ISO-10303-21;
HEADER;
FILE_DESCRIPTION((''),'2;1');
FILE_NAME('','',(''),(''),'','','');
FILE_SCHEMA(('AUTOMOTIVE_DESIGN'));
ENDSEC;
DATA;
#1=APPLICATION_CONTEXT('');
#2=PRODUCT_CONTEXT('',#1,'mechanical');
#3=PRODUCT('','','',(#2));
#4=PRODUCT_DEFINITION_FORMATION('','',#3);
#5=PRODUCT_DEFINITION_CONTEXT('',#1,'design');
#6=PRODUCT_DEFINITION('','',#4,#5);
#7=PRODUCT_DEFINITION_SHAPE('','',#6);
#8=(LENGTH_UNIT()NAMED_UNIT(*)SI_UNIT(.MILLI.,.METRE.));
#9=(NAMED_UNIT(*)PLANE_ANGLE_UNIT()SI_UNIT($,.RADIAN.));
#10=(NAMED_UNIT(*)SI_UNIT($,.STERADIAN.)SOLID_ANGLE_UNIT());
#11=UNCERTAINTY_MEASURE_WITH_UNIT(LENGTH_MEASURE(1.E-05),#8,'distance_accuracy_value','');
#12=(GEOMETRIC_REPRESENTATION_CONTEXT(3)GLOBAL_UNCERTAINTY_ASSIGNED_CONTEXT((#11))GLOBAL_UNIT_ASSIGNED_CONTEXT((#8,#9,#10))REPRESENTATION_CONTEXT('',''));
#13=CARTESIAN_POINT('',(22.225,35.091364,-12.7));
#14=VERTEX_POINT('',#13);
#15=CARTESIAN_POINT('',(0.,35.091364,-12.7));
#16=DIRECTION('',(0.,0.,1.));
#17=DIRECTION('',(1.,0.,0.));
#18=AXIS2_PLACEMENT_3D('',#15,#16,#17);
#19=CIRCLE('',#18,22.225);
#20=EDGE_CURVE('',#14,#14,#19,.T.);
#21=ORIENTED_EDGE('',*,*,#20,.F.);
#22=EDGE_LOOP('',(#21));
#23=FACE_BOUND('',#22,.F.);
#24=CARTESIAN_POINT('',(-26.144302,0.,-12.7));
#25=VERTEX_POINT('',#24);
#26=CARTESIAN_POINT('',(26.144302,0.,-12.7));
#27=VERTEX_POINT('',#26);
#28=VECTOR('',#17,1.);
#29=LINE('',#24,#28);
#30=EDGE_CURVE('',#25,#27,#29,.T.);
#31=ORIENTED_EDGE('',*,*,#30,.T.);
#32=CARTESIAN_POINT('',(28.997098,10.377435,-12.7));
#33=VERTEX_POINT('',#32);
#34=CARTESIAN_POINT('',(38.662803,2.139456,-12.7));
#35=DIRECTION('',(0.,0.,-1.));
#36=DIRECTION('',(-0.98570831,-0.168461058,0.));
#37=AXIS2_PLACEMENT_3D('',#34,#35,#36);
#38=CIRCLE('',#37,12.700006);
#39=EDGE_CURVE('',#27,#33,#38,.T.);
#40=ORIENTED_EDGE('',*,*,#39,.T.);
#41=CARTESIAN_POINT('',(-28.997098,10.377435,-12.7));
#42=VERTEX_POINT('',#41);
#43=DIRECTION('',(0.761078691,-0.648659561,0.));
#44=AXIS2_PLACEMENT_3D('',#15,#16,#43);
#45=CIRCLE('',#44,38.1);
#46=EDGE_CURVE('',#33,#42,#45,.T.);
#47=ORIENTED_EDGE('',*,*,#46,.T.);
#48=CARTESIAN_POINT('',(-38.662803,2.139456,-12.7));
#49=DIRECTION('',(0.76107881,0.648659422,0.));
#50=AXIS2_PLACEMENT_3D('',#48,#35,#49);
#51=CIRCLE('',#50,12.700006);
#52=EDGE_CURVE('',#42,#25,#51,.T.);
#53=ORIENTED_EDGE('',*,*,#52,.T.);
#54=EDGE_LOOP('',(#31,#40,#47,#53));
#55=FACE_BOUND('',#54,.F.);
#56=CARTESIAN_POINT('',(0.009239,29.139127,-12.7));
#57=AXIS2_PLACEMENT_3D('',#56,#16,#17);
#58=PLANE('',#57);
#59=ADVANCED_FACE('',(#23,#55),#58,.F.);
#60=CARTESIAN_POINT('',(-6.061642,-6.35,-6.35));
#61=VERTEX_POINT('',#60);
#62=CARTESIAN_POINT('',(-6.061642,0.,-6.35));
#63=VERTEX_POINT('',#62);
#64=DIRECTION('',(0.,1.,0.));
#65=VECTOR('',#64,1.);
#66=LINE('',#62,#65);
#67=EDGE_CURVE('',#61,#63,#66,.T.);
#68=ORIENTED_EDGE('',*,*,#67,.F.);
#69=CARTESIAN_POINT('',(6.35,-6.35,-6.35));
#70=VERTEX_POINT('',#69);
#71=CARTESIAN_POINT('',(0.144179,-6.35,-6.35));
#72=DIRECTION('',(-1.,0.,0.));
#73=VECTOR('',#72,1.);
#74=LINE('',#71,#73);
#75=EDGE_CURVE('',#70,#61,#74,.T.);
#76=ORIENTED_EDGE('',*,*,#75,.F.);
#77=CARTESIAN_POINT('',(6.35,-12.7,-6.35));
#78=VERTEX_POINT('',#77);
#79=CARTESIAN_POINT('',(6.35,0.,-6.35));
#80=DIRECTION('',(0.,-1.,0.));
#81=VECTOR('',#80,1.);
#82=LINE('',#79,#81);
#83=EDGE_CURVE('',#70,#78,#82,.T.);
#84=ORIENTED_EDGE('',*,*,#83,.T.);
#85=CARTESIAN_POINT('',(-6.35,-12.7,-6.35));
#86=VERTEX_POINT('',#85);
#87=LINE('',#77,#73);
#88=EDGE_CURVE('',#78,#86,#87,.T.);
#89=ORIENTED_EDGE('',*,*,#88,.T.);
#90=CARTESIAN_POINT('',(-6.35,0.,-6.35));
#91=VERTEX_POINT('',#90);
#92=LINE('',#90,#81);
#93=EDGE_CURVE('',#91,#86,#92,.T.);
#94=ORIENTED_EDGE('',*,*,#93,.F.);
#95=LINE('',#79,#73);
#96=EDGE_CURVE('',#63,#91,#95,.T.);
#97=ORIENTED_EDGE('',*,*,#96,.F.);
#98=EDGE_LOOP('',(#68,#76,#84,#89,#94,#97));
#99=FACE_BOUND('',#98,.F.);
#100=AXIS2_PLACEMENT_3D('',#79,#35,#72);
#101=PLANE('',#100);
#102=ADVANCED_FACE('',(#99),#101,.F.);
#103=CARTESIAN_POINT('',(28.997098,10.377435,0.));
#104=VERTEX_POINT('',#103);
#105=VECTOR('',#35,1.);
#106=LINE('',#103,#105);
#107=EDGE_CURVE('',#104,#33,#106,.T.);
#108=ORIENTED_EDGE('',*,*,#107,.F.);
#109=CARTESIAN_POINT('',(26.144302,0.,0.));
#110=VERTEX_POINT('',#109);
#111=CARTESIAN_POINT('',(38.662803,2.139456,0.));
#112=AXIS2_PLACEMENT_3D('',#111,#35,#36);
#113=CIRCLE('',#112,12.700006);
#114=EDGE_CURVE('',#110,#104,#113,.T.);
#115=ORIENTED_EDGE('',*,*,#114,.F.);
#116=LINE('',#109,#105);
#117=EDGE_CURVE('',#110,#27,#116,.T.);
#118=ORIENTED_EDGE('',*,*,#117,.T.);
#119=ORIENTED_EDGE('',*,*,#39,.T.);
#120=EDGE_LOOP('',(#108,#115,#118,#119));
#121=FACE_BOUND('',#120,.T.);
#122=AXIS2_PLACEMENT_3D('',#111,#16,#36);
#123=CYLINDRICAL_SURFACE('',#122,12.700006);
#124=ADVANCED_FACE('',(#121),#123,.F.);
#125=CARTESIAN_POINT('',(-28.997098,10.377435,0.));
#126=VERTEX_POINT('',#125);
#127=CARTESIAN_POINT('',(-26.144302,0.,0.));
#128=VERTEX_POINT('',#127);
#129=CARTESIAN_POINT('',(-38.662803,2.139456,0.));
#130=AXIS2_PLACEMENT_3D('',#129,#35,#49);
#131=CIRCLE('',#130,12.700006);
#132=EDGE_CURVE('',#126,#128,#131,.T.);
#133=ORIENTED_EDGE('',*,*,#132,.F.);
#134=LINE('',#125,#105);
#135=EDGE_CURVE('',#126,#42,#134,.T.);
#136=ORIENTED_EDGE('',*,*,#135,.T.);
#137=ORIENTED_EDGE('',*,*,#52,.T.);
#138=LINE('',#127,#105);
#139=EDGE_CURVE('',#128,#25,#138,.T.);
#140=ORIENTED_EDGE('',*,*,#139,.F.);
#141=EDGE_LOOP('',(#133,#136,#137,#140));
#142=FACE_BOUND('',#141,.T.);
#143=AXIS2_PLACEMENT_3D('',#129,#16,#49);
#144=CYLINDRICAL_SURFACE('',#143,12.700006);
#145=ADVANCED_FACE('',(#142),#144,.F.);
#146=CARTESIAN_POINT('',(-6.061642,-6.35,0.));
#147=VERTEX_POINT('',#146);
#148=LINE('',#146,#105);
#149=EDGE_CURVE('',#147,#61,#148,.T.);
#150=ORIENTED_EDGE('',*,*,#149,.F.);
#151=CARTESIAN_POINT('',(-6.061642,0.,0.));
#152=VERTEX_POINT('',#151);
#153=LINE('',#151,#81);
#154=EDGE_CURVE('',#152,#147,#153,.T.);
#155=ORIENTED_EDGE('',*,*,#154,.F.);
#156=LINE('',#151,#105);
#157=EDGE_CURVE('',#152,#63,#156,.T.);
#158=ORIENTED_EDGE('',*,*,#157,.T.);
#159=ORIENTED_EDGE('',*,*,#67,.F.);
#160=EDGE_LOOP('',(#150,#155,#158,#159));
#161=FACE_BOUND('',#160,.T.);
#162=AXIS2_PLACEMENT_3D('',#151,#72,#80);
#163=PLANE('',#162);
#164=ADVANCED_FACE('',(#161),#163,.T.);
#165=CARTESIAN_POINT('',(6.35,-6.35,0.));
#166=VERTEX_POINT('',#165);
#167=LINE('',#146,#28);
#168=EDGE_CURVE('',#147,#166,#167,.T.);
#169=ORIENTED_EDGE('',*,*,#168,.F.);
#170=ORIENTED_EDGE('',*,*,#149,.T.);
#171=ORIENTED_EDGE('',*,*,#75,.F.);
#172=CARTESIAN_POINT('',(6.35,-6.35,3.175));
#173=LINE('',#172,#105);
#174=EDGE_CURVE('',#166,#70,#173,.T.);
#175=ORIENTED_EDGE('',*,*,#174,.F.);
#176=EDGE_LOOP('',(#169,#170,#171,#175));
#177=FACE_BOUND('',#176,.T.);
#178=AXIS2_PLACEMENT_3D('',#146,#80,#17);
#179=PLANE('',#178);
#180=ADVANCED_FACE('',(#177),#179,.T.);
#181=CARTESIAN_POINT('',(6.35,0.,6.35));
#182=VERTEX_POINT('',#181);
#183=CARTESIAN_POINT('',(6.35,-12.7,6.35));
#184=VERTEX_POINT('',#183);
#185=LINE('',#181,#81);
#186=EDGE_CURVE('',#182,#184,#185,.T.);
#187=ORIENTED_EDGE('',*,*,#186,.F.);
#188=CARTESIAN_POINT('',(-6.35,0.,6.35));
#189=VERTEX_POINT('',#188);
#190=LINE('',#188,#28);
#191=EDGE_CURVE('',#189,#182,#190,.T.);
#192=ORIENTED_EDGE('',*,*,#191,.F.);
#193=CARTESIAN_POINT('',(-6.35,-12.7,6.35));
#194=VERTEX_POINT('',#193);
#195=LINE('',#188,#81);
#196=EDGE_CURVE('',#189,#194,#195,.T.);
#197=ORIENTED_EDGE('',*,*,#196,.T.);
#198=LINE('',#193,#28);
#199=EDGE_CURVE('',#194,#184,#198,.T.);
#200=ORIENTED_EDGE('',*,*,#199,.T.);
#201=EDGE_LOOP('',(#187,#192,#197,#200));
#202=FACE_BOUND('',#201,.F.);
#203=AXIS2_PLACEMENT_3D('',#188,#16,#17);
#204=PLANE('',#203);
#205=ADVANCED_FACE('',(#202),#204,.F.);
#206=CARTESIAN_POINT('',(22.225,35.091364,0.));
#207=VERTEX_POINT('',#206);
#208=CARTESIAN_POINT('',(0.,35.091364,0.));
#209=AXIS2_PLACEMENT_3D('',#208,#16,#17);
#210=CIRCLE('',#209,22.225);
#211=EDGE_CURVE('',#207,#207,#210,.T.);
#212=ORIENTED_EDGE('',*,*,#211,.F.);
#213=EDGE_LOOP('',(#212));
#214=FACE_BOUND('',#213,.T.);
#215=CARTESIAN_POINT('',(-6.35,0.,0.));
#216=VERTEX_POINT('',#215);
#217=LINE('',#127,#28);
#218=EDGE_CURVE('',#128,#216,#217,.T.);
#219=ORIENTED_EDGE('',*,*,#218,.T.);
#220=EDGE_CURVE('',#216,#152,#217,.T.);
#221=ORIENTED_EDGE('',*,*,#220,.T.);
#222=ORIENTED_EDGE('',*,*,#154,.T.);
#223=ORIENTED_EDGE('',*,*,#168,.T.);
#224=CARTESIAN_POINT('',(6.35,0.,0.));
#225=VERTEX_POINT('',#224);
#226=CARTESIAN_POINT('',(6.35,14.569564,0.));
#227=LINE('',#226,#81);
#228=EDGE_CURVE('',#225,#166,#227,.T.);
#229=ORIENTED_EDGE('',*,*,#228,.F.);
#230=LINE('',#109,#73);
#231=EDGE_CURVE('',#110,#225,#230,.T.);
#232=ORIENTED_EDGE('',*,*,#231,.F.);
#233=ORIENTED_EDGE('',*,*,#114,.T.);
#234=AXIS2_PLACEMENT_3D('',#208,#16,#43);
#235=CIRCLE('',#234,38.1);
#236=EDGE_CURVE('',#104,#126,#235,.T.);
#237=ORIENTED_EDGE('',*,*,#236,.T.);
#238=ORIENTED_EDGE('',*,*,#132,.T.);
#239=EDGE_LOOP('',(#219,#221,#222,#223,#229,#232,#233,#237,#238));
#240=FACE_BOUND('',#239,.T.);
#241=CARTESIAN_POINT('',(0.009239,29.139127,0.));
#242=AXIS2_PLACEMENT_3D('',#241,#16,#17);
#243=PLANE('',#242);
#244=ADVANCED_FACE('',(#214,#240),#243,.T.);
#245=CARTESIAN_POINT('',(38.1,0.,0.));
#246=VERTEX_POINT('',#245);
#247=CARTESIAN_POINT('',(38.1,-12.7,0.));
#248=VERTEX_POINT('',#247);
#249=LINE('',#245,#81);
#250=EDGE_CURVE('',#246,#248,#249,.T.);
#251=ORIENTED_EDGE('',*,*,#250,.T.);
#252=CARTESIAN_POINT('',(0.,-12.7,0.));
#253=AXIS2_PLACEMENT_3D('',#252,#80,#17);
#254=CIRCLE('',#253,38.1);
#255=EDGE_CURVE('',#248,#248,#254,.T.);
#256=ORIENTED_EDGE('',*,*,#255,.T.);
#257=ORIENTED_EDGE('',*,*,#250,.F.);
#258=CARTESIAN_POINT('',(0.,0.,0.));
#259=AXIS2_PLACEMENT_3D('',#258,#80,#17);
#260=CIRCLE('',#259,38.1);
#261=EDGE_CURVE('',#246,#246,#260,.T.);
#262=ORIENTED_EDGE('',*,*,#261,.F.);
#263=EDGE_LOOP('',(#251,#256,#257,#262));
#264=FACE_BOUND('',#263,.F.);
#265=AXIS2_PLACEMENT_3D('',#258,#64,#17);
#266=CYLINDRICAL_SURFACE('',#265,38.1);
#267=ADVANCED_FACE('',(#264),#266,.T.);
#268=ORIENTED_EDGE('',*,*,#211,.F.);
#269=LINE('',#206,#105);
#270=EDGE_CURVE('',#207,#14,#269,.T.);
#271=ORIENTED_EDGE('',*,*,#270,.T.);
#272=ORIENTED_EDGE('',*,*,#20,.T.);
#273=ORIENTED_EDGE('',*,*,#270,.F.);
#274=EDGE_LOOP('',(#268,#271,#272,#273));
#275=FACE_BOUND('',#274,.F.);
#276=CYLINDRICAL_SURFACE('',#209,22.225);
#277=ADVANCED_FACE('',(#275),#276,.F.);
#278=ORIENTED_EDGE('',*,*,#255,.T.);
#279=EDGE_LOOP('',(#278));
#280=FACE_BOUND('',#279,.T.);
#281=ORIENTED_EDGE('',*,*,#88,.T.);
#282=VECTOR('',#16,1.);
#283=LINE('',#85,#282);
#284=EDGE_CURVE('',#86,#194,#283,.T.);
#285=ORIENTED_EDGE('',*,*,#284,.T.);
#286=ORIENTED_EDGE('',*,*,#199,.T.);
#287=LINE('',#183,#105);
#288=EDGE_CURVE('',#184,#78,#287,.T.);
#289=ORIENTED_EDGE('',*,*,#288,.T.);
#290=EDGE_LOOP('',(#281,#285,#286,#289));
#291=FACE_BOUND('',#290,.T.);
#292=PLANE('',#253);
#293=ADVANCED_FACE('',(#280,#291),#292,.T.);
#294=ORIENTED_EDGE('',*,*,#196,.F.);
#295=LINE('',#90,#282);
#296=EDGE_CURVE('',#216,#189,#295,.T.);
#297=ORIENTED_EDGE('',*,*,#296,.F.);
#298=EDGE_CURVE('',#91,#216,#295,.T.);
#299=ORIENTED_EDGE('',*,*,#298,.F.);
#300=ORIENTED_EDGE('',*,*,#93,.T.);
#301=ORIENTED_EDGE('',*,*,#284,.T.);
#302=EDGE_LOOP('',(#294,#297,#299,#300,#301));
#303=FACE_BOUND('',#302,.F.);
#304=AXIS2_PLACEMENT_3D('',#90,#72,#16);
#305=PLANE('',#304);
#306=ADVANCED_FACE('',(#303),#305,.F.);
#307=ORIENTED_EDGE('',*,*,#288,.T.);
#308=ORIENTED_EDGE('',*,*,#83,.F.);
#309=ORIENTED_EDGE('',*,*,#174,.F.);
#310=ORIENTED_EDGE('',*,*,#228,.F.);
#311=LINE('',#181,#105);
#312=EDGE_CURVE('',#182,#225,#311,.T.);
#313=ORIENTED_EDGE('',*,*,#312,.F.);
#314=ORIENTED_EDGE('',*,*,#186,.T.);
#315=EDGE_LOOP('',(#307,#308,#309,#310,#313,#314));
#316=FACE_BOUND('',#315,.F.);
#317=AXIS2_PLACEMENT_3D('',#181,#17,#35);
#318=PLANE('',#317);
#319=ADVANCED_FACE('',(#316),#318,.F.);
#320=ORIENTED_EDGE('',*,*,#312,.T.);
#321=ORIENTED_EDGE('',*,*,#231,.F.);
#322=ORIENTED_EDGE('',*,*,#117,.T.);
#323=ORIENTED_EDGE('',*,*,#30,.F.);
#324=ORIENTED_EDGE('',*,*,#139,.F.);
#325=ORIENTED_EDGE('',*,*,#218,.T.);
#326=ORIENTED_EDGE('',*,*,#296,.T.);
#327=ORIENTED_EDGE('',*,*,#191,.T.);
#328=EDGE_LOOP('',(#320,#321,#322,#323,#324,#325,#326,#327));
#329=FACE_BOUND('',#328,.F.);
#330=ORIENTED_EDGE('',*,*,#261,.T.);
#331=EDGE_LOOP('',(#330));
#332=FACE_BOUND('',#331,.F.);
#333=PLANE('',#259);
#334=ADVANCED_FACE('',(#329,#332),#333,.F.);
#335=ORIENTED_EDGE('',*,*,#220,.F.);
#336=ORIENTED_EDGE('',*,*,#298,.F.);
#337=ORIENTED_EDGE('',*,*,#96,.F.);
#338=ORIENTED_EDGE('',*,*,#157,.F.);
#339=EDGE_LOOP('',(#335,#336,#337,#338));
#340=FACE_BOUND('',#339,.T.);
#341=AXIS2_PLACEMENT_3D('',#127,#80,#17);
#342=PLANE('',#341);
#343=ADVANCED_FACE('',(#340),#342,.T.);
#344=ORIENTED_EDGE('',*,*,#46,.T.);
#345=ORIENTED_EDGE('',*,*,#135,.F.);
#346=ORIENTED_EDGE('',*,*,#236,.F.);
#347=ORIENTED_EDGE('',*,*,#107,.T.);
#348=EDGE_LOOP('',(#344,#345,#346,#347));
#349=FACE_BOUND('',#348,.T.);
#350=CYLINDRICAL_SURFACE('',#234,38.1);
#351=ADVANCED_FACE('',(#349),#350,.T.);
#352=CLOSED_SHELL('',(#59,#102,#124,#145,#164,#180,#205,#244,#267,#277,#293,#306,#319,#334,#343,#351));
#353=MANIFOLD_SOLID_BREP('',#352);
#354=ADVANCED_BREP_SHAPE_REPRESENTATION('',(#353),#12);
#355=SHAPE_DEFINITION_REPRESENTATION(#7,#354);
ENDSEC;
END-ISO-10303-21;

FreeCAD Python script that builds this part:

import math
import FreeCAD as App
import Part
import Sketcher
from FreeCAD import Vector
Q = App.Units.Quantity


def add_polygon(sketch, points):
    """Adds a closed chain of lines whose ends are joined by coincident constraints."""
    first, n = sketch.GeometryCount, len(points)
    for a, b in zip(points, points[1:] + points[:1]):
        sketch.addGeometry(Part.LineSegment(App.Vector(*a, 0), App.Vector(*b, 0)), False)
    for i in range(n):
        sketch.addConstraint(Sketcher.Constraint("Coincident", first + i, 2, first + (i + 1) % n, 1))

doc = App.newDocument("Part")
params = doc.addObject("Spreadsheet::Sheet", "Params")
for row, (alias, value) in enumerate([
    ("sketch1_diameter", "3 in"),
    ("sketch1_width", "0.5 in"),
    ("pad1_length", "0.5 in"),
    ("sketch2_radius", "1.5 in"),
    ("sketch2_diameter", "1.75 in"),
    ("sketch2_height", "0.25 in"),
    ("pad2_length", "0.5 in"),
], start=1):
    params.set(f"A{row}", alias)
    params.set(f"B{row}", "=" + value)
    params.setAlias(f"B{row}", alias)

body = doc.addObject("PartDesign::Body", "Body")

# Sketch on XZ plane
sketch1 = body.newObject("Sketcher::SketchObject", "Sketch")
sketch1.AttachmentSupport = (doc.getObject("XZ_Plane"), [""])
sketch1.MapMode = "FlatFace"
sketch1.addGeometry(Part.Circle(Vector(0, 0, 0), Vector(0, 0, 1), 38), False)  # 0
add_polygon(sketch1, [(-6, -6), (-6, 6), (6, 6), (6, -6)])  # lines 1-4
sketch1.addConstraint([
    Sketcher.Constraint("Vertical", 1),
    Sketcher.Constraint("Horizontal", 2),
    Sketcher.Constraint("Vertical", 3),
    Sketcher.Constraint("Horizontal", 4),
    Sketcher.Constraint("Coincident", 0, 3, -1, 1),
    Sketcher.Constraint("Symmetric", 1, 2, 3, 2, -1, 1),
    Sketcher.Constraint("Equal", 4, 1),
    Sketcher.Constraint("Diameter", 0, Q("3 in")),
    Sketcher.Constraint("DistanceX", 2, 1, 2, 2, Q("0.5 in")),
])
sketch1.setExpression("Constraints[11]", "Params.sketch1_diameter")
sketch1.setExpression("Constraints[12]", "Params.sketch1_width")
pad1 = body.newObject("PartDesign::Pad", "Pad")
pad1.Profile = sketch1
pad1.setExpression("Length", "Params.pad1_length")

# Sketch on XY plane
sketch2 = body.newObject("Sketcher::SketchObject", "Sketch001")
sketch2.AttachmentSupport = (doc.getObject("XY_Plane"), [""])
sketch2.MapMode = "FlatFace"
sketch2.addGeometry([
    Part.ArcOfCircle(Part.Circle(Vector(39, 2, 0), Vector(0, 0, 1), 13), math.radians(140), math.radians(190)),  # 0
    Part.ArcOfCircle(Part.Circle(Vector(0, 35, 0), Vector(0, 0, 1), 38), math.radians(-40), math.radians(220)),  # 1
    Part.ArcOfCircle(Part.Circle(Vector(-39, 2, 0), Vector(0, 0, 1), 13), math.radians(-10), math.radians(40)),  # 2
    Part.LineSegment(Vector(-26, 0, 0), Vector(-6, 0, 0)),  # 3
    Part.LineSegment(Vector(-6, 0, 0), Vector(-6, -6, 0)),  # 4
    Part.LineSegment(Vector(-6, -6, 0), Vector(6, -6, 0)),  # 5
    Part.LineSegment(Vector(6, -6, 0), Vector(6, 0, 0)),  # 6
    Part.LineSegment(Vector(6, 0, 0), Vector(26, 0, 0)),  # 7
    Part.Circle(Vector(0, 35, 0), Vector(0, 0, 1), 22),  # 8
], False)
sketch2.addConstraint([
    Sketcher.Constraint("Tangent", 0, 1, 1, 1),
    Sketcher.Constraint("Tangent", 1, 2, 2, 2),
    Sketcher.Constraint("Coincident", 2, 1, 3, 1),
    Sketcher.Constraint("Coincident", 3, 2, 4, 1),
    Sketcher.Constraint("Coincident", 4, 2, 5, 1),
    Sketcher.Constraint("Coincident", 5, 2, 6, 1),
    Sketcher.Constraint("Coincident", 6, 2, 7, 1),
    Sketcher.Constraint("Coincident", 7, 2, 0, 2),
    Sketcher.Constraint("Horizontal", 3),
    Sketcher.Constraint("Vertical", 4),
    Sketcher.Constraint("Horizontal", 5),
    Sketcher.Constraint("Vertical", 6),
    Sketcher.Constraint("Horizontal", 7),
    Sketcher.Constraint("Coincident", 8, 3, 1, 3),
    Sketcher.Constraint("Equal", 0, 2),
    Sketcher.Constraint("Symmetric", 2, 1, 7, 2, -1, 1),
    Sketcher.Constraint("Symmetric", 0, 3, 2, 3, -2),
    Sketcher.Constraint("Radius", 1, Q("1.5 in")),
    Sketcher.Constraint("Diameter", 8, Q("1.75 in")),
    Sketcher.Constraint("DistanceY", 4, 2, 4, 1, Q("0.25 in")),
    Sketcher.Constraint("Radius", 0, Q("12.700006 mm")),
    Sketcher.Constraint("DistanceX", 3, 1, 3, 2, Q("20.08266 mm")),
    Sketcher.Constraint("DistanceX", 7, 1, 7, 2, Q("19.72702 mm")),
    Sketcher.Constraint("DistanceX", -1, 1, 0, 1, Q("28.997098 mm")),
    Sketcher.Constraint("DistanceX", -1, 1, 7, 2, Q("26.144302 mm")),
])
sketch2.setExpression("Constraints[17]", "Params.sketch2_radius")
sketch2.setExpression("Constraints[18]", "Params.sketch2_diameter")
sketch2.setExpression("Constraints[19]", "Params.sketch2_height")
pad2 = body.newObject("PartDesign::Pad", "Pad001")
pad2.Profile = sketch2
pad2.setExpression("Length", "Params.pad2_length")
pad2.Reversed = True

doc.recompute()
